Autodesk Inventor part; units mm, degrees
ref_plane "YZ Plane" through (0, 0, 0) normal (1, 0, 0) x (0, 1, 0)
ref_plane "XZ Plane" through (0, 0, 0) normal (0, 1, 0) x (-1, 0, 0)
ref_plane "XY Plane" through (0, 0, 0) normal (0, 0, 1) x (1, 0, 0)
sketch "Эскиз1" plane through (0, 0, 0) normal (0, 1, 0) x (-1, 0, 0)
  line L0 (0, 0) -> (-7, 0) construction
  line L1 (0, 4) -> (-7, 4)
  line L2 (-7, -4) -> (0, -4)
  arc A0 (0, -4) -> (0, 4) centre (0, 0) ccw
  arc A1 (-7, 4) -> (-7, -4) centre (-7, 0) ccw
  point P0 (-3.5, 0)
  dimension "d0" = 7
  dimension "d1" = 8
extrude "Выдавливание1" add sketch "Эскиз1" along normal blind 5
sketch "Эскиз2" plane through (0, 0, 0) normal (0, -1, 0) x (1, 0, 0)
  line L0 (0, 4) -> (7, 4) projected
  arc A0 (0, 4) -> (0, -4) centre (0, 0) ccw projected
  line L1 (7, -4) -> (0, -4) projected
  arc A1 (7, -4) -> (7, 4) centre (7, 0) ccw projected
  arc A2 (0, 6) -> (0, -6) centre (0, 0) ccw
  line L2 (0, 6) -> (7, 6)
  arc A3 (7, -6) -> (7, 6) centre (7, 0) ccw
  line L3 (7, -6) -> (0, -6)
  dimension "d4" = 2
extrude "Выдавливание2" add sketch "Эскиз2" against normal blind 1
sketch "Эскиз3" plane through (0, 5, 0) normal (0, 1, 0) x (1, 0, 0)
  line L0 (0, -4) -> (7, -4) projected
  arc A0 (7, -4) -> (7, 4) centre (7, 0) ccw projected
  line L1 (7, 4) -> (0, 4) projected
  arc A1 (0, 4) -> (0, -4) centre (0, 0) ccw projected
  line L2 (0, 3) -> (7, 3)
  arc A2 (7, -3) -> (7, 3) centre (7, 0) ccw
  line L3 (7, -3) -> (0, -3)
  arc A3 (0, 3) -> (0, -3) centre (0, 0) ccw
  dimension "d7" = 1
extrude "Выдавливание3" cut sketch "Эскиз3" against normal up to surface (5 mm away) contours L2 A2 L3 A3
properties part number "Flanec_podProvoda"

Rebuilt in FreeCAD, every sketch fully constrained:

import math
import FreeCAD as App
import Part
import Sketcher

V = App.Vector

doc = App.newDocument("Part")
body = doc.addObject("PartDesign::Body", "Body")

sketch1 = doc.addObject("Sketcher::SketchObject", "Sketch")
body.addObject(sketch1)
sketch1.AttachmentSupport = (doc.XZ_Plane, [""])
sketch1.MapMode = "FlatFace"
sketch1.addGeometry([
    Part.ArcOfCircle(Part.Circle(V(0, 0, 0), V(0, 0, 1), 4), math.radians(90), math.radians(270)),
    Part.LineSegment(V(0, 4, 0), V(7, 4, 0)),
    Part.ArcOfCircle(Part.Circle(V(7, 0, 0), V(0, 0, 1), 4), math.radians(-90), math.radians(90)),
    Part.LineSegment(V(7, -4, 0), V(0, -4, 0)),
], False)
sketch1.addConstraint([
    Sketcher.Constraint("Tangent", 0, 1, 1, 1),
    Sketcher.Constraint("Tangent", 1, 2, 2, 2),
    Sketcher.Constraint("Tangent", 2, 1, 3, 1),
    Sketcher.Constraint("Tangent", 3, 2, 0, 2),
    Sketcher.Constraint("Horizontal", 1),
    Sketcher.Constraint("Horizontal", 3),
    Sketcher.Constraint("Coincident", 0, 3, -1, 1),
    Sketcher.Constraint("Radius", 0, 4.0),
    Sketcher.Constraint("DistanceX", 1, 1, 1, 2, 7.0),
])
pad1 = doc.addObject("PartDesign::Pad", "Pad")
body.addObject(pad1)
pad1.Profile = sketch1
pad1.Length = 5
pad1.Reversed = True

sketch2 = doc.addObject("Sketcher::SketchObject", "Sketch001")
body.addObject(sketch2)
sketch2.AttachmentSupport = (doc.XZ_Plane, [""])
sketch2.MapMode = "FlatFace"
sketch2.addGeometry([
    Part.LineSegment(V(7, 6, 0), V(0, 6, 0)),
    Part.ArcOfCircle(Part.Circle(V(0, 0, 0), V(0, 0, 1), 6), math.radians(90), math.radians(270)),
    Part.LineSegment(V(0, -6, 0), V(7, -6, 0)),
    Part.ArcOfCircle(Part.Circle(V(7, 0, 0), V(0, 0, 1), 6), math.radians(-90), math.radians(90)),
    Part.ArcOfCircle(Part.Circle(V(0, 0, 0), V(0, 0, 1), 4), math.radians(90), math.radians(270)),
    Part.LineSegment(V(0, 4, 0), V(7, 4, 0)),
    Part.ArcOfCircle(Part.Circle(V(7, 0, 0), V(0, 0, 1), 4), math.radians(-90), math.radians(90)),
    Part.LineSegment(V(7, -4, 0), V(0, -4, 0)),
], False)
sketch2.addConstraint([
    Sketcher.Constraint("Tangent", 0, 2, 1, 1),
    Sketcher.Constraint("Tangent", 1, 2, 2, 1),
    Sketcher.Constraint("Tangent", 2, 2, 3, 1),
    Sketcher.Constraint("Tangent", 3, 2, 0, 1),
    Sketcher.Constraint("Tangent", 4, 1, 5, 1),
    Sketcher.Constraint("Tangent", 5, 2, 6, 2),
    Sketcher.Constraint("Tangent", 6, 1, 7, 1),
    Sketcher.Constraint("Tangent", 7, 2, 4, 2),
    Sketcher.Constraint("Horizontal", 0),
    Sketcher.Constraint("Horizontal", 2),
    Sketcher.Constraint("Horizontal", 5),
    Sketcher.Constraint("Horizontal", 7),
    Sketcher.Constraint("Coincident", 1, 3, -1, 1),
    Sketcher.Constraint("Coincident", 4, 3, -1, 1),
    Sketcher.Constraint("Vertical", 6, 3, 2, 2),
    Sketcher.Constraint("Radius", 1, 6.0),
    Sketcher.Constraint("Radius", 4, 4.0),
    Sketcher.Constraint("DistanceX", 0, 2, 0, 1, 7.0),
])
pad2 = doc.addObject("PartDesign::Pad", "Pad001")
body.addObject(pad2)
pad2.Profile = sketch2
pad2.Length = 1
pad2.Reversed = True

sketch3 = doc.addObject("Sketcher::SketchObject", "Sketch002")
body.addObject(sketch3)
sketch3.AttachmentSupport = (doc.XZ_Plane, [""])
sketch3.MapMode = "FlatFace"
sketch3.AttachmentOffset = App.Placement(V(0, 0, -5), App.Rotation())
sketch3.addGeometry([
    Part.LineSegment(V(7, -3, 0), V(0, -3, 0)),
    Part.ArcOfCircle(Part.Circle(V(0, 0, 0), V(0, 0, 1), 3), math.radians(90), math.radians(270)),
    Part.LineSegment(V(0, 3, 0), V(7, 3, 0)),
    Part.ArcOfCircle(Part.Circle(V(7, 0, 0), V(0, 0, 1), 3), math.radians(-90), math.radians(90)),
], False)
sketch3.addConstraint([
    Sketcher.Constraint("Tangent", 0, 2, 1, 2),
    Sketcher.Constraint("Tangent", 1, 1, 2, 1),
    Sketcher.Constraint("Tangent", 2, 2, 3, 2),
    Sketcher.Constraint("Tangent", 3, 1, 0, 1),
    Sketcher.Constraint("Horizontal", 0),
    Sketcher.Constraint("Horizontal", 2),
    Sketcher.Constraint("Coincident", 1, 3, -1, 1),
    Sketcher.Constraint("Radius", 1, 3.0),
    Sketcher.Constraint("DistanceX", 0, 2, 0, 1, 7.0),
])
pocket1 = doc.addObject("PartDesign::Pocket", "Pocket")
body.addObject(pocket1)
pocket1.Profile = sketch3
pocket1.Length = 5
pocket1.Reversed = True

doc.recompute()
